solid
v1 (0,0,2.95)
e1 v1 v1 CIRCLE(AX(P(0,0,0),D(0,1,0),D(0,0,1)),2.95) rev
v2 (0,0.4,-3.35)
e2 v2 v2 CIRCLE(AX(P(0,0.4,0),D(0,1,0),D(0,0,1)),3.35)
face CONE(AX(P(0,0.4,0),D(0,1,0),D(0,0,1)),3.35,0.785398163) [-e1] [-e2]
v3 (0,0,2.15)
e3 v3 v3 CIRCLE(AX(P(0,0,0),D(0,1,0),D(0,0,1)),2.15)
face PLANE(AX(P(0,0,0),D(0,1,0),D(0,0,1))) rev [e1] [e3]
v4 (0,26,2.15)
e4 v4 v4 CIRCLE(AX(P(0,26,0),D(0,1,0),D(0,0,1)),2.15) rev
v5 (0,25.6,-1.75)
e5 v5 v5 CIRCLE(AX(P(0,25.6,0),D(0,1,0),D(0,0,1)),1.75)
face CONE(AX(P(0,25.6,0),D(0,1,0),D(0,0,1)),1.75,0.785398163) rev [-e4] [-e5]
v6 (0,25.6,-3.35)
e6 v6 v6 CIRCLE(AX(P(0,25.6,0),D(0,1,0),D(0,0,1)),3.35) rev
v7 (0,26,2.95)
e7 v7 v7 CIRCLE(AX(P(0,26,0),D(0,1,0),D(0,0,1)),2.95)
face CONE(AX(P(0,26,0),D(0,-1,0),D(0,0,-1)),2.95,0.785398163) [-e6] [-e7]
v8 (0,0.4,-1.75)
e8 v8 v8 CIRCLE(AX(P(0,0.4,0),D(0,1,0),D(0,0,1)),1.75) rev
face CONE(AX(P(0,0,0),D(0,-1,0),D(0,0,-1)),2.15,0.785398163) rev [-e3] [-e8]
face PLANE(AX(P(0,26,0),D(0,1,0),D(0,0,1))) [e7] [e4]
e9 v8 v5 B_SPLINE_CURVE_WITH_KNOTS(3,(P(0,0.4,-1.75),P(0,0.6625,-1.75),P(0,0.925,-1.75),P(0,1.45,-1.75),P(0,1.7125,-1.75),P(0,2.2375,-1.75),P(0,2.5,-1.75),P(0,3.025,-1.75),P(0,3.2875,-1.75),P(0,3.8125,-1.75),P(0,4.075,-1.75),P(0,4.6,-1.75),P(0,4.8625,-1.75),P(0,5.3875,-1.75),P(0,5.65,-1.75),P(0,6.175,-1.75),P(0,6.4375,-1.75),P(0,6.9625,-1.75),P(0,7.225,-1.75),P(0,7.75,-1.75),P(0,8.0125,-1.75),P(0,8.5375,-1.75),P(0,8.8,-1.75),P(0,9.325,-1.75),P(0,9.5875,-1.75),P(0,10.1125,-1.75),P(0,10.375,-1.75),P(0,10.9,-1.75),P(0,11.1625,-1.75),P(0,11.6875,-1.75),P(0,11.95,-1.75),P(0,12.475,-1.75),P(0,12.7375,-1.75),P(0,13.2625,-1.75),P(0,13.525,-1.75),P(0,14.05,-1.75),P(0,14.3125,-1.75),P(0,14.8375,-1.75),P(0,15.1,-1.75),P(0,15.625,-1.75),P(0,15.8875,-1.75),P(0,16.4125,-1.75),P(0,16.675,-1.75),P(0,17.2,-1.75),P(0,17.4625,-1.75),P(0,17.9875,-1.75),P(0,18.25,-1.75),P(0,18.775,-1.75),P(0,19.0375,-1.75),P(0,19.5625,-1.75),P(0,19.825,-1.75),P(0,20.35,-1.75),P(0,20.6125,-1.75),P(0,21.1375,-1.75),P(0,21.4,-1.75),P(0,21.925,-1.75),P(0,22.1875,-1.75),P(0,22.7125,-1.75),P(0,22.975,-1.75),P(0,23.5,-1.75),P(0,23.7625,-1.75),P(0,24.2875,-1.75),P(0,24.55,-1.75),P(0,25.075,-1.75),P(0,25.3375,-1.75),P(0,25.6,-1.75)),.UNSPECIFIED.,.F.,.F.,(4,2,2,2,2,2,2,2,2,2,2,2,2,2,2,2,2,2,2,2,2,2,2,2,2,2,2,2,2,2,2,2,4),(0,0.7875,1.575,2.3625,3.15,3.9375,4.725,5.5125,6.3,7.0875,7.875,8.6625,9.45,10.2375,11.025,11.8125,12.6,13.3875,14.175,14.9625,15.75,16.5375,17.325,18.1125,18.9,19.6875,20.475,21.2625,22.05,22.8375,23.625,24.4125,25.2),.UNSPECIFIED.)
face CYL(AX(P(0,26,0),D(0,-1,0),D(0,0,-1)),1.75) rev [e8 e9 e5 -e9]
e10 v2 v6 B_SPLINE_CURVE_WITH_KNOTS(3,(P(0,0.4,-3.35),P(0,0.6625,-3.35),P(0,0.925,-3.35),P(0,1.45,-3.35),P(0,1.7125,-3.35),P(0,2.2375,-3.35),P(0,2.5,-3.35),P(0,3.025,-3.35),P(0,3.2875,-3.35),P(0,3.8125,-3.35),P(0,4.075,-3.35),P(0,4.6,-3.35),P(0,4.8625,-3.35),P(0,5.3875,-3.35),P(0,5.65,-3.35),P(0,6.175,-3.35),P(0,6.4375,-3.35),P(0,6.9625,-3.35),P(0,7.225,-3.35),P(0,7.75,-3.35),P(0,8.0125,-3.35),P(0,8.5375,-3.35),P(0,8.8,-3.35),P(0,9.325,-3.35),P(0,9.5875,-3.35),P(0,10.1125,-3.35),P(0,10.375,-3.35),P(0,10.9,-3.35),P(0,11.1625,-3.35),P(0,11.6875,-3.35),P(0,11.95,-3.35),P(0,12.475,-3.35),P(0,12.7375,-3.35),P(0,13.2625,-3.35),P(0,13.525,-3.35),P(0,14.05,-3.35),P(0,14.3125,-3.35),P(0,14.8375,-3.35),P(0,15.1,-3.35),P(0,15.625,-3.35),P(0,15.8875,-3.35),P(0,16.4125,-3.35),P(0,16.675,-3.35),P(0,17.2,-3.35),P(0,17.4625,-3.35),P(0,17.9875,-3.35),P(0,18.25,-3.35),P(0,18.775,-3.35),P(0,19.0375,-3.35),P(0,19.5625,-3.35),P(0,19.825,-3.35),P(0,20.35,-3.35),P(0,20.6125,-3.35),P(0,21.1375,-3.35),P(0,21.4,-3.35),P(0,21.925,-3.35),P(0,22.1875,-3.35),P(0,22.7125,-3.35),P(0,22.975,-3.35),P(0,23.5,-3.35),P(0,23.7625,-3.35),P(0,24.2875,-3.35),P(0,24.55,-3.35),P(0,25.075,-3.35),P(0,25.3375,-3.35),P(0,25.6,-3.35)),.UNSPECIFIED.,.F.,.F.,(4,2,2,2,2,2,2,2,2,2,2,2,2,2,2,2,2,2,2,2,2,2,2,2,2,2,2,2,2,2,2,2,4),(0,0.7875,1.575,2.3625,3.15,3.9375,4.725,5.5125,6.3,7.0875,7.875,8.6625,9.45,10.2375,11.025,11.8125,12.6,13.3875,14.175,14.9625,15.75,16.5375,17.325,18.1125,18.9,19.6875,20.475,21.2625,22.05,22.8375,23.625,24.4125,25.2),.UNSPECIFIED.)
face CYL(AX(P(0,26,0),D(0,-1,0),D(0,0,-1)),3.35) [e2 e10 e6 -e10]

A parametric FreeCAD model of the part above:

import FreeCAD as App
import Part
import Sketcher
from FreeCAD import Vector
Q = App.Units.Quantity


def edges_at(feature, points):
    """Names of the edges that pass closest to the given points."""
    edges = feature.Shape.Edges
    near = lambda p: min(range(len(edges)), key=lambda i: edges[i].distToShape(Part.Vertex(*p))[0])
    return sorted({f"Edge{near(p) + 1}" for p in points})

doc = App.newDocument("Part")
body = doc.addObject("PartDesign::Body", "Body")

# Sketch on XZ plane
sketch1 = doc.addObject("Sketcher::SketchObject", "Sketch")
body.addObject(sketch1)
sketch1.AttachmentSupport = (doc.XZ_Plane, [""])
sketch1.MapMode = "FlatFace"
sketch1.addGeometry([
    Part.Circle(Vector(0, 0, 0), Vector(0, 0, 1), 3.4),
    Part.Circle(Vector(0, 0, 0), Vector(0, 0, 1), 1.8),
], False)
sketch1.addConstraint([
    Sketcher.Constraint("Coincident", 0, 3, -1, 1),
    Sketcher.Constraint("Coincident", 1, 3, -1, 1),
    Sketcher.Constraint("Diameter", 0, Q("6.7 mm")),
    Sketcher.Constraint("Diameter", 1, Q("3.5 mm")),
])
pad1 = doc.addObject("PartDesign::Pad", "Pad")
body.addObject(pad1)
pad1.Profile = sketch1
pad1.Length = 26
pad1.Reversed = True
doc.recompute()

chamfer = doc.addObject("PartDesign::Chamfer", "Chamfer")
body.addObject(chamfer)
chamfer.Base = (pad1, edges_at(pad1, [
    (0, 0, 3.35),
    (0, 26, 3.35),
    (0, 0, 1.75),
    (0, 26, 1.75),
]))
chamfer.Size = 0.4

doc.recompute()
